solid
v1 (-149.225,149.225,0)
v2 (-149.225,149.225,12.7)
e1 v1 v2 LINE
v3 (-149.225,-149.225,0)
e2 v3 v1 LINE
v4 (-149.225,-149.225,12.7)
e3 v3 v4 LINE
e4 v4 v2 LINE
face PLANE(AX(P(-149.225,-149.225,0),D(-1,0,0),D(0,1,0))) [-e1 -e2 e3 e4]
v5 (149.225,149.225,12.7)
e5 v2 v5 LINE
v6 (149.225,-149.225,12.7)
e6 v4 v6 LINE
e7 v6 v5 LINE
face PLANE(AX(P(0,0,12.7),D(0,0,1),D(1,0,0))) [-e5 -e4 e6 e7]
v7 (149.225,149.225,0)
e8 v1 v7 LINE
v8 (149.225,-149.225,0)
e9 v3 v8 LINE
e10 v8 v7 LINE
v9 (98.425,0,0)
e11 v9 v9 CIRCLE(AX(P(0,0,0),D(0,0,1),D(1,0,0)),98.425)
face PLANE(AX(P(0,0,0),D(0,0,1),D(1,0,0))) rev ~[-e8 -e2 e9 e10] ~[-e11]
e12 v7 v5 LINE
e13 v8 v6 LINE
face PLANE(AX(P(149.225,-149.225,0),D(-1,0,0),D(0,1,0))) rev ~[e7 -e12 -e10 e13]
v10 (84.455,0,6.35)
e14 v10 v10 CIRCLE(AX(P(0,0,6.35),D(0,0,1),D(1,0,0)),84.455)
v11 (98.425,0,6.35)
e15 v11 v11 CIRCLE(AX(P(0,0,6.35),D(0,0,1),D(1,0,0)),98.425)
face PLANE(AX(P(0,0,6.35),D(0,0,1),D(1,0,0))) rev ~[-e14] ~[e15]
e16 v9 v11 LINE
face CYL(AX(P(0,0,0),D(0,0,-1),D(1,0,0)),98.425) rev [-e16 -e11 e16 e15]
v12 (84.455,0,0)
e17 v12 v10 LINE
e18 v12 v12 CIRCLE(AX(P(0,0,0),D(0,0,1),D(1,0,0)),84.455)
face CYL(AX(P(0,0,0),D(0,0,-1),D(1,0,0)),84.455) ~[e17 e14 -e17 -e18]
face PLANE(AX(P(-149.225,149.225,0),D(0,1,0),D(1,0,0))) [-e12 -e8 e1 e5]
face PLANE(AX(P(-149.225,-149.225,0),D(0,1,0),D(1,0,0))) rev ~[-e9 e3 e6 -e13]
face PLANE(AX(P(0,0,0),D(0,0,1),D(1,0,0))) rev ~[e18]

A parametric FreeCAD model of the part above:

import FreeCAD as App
import Part
import Sketcher

V = App.Vector
Q = App.Units.Quantity

doc = App.newDocument("Part")
body = doc.addObject("PartDesign::Body", "Body")

# Sketch on XY plane
sketch1 = body.newObject("Sketcher::SketchObject", "Sketch")
sketch1.AttachmentSupport = (doc.getObject("XY_Plane"), [""])
sketch1.MapMode = "FlatFace"
sketch1.addGeometry([
    Part.LineSegment(V(-149, 149, 0), V(-149, -149, 0)),
    Part.LineSegment(V(-149, -149, 0), V(149, -149, 0)),
    Part.LineSegment(V(149, -149, 0), V(149, 149, 0)),
    Part.LineSegment(V(149, 149, 0), V(-149, 149, 0)),
], False)
sketch1.addConstraint([
    Sketcher.Constraint("Coincident", 0, 2, 1, 1),
    Sketcher.Constraint("Coincident", 1, 2, 2, 1),
    Sketcher.Constraint("Coincident", 2, 2, 3, 1),
    Sketcher.Constraint("Coincident", 3, 2, 0, 1),
    Sketcher.Constraint("Vertical", 0),
    Sketcher.Constraint("Horizontal", 1),
    Sketcher.Constraint("Vertical", 2),
    Sketcher.Constraint("Horizontal", 3),
    Sketcher.Constraint("Symmetric", 0, 2, 2, 2, -1, 1),
    Sketcher.Constraint("Equal", 3, 0),
    Sketcher.Constraint("DistanceX", 1, 1, 1, 2, Q("11.75 in")),
])
pad1 = body.newObject("PartDesign::Pad", "Pad")
pad1.Profile = sketch1
pad1.Length = Q("0.5 in")

# Sketch on XY plane
sketch2 = body.newObject("Sketcher::SketchObject", "Sketch001")
sketch2.AttachmentSupport = (doc.getObject("XY_Plane"), [""])
sketch2.MapMode = "FlatFace"
sketch2.addGeometry([
    Part.Circle(V(0, 0, 0), V(0, 0, 1), 98),
    Part.Circle(V(0, 0, 0), V(0, 0, 1), 84),
], False)
sketch2.addConstraint([
    Sketcher.Constraint("Coincident", 0, 3, -1, 1),
    Sketcher.Constraint("Coincident", 1, 3, -1, 1),
    Sketcher.Constraint("Diameter", 0, Q("7.75 in")),
    Sketcher.Constraint("Diameter", 1, Q("6.65 in")),
])
pocket1 = body.newObject("PartDesign::Pocket", "Pocket")
pocket1.Profile = sketch2
pocket1.Length = Q("0.25 in")
pocket1.Reversed = True

doc.recompute()
